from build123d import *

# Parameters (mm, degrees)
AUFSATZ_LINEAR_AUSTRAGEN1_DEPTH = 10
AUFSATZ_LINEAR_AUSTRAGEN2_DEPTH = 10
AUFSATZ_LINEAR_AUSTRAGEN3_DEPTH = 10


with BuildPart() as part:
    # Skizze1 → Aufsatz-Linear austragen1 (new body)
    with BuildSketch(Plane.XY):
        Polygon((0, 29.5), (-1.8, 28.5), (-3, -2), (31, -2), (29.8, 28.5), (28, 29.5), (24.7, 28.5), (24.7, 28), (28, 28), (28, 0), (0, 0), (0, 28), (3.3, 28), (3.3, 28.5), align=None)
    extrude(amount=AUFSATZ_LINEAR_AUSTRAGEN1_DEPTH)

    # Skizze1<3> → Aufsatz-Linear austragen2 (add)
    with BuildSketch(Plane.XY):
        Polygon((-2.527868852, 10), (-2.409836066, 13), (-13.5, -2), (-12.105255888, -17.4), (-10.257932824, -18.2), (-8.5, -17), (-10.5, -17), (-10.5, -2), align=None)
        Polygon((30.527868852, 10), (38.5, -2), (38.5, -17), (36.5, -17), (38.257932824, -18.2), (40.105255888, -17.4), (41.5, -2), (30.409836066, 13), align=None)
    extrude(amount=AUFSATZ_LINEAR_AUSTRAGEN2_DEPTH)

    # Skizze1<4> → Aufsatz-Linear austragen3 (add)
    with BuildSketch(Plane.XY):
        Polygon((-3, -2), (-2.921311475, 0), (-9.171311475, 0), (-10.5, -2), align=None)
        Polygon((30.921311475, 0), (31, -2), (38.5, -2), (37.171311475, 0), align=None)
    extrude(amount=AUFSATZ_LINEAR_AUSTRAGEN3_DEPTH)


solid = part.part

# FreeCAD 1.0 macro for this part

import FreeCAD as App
import Part
import Sketcher

V = App.Vector

doc = App.newDocument("Part")
params = doc.addObject("Spreadsheet::Sheet", "Params")
for row, (alias, value) in enumerate([
    ("sketch1_width", "34 mm"),
    ("sketch1_width2", "28 mm"),
    ("sketch1_width3", "3.3 mm"),
    ("sketch1_height", "0.5 mm"),
    ("pad1_length", "10 mm"),
    ("sketch2_width", "2 mm"),
    ("sketch2_height", "15 mm"),
    ("pad2_length", "10 mm"),
    ("sketch3_width", "7.5 mm"),
    ("sketch3_width2", "6.25 mm"),
    ("pad3_length", "10 mm"),
], start=1):
    params.set(f"A{row}", alias)
    params.set(f"B{row}", "=" + value)
    params.setAlias(f"B{row}", alias)

body = doc.addObject("PartDesign::Body", "Body")

# Sketch on XY plane
sketch1 = body.newObject("Sketcher::SketchObject", "Sketch")
sketch1.AttachmentSupport = (doc.getObject("XY_Plane"), [""])
sketch1.MapMode = "FlatFace"
sketch1.addGeometry([
    Part.LineSegment(V(0, 29.5, 0), V(-1.8, 28.5, 0)),  # 0
    Part.LineSegment(V(-1.8, 28.5, 0), V(-3, -2, 0)),  # 1
    Part.LineSegment(V(-3, -2, 0), V(31, -2, 0)),  # 2
    Part.LineSegment(V(31, -2, 0), V(29.8, 28.5, 0)),  # 3
    Part.LineSegment(V(29.8, 28.5, 0), V(28, 29.5, 0)),  # 4
    Part.LineSegment(V(28, 29.5, 0), V(24.7, 28.5, 0)),  # 5
    Part.LineSegment(V(24.7, 28.5, 0), V(24.7, 28, 0)),  # 6
    Part.LineSegment(V(24.7, 28, 0), V(28, 28, 0)),  # 7
    Part.LineSegment(V(28, 28, 0), V(28, 0, 0)),  # 8
    Part.LineSegment(V(28, 0, 0), V(0, 0, 0)),  # 9
    Part.LineSegment(V(0, 0, 0), V(0, 28, 0)),  # 10
    Part.LineSegment(V(0, 28, 0), V(3.3, 28, 0)),  # 11
    Part.LineSegment(V(3.3, 28, 0), V(3.3, 28.5, 0)),  # 12
    Part.LineSegment(V(3.3, 28.5, 0), V(0, 29.5, 0)),  # 13
], False)
sketch1.addConstraint([
    Sketcher.Constraint("Coincident", 0, 2, 1, 1),
    Sketcher.Constraint("Coincident", 1, 2, 2, 1),
    Sketcher.Constraint("Coincident", 2, 2, 3, 1),
    Sketcher.Constraint("Coincident", 3, 2, 4, 1),
    Sketcher.Constraint("Coincident", 4, 2, 5, 1),
    Sketcher.Constraint("Coincident", 5, 2, 6, 1),
    Sketcher.Constraint("Coincident", 6, 2, 7, 1),
    Sketcher.Constraint("Coincident", 7, 2, 8, 1),
    Sketcher.Constraint("Coincident", 8, 2, 9, 1),
    Sketcher.Constraint("Coincident", 9, 2, 10, 1),
    Sketcher.Constraint("Coincident", 10, 2, 11, 1),
    Sketcher.Constraint("Coincident", 11, 2, 12, 1),
    Sketcher.Constraint("Coincident", 12, 2, 13, 1),
    Sketcher.Constraint("Coincident", 13, 2, 0, 1),
    Sketcher.Constraint("Horizontal", 2),
    Sketcher.Constraint("Vertical", 6),
    Sketcher.Constraint("Horizontal", 7),
    Sketcher.Constraint("Vertical", 8),
    Sketcher.Constraint("Horizontal", 9),
    Sketcher.Constraint("Vertical", 10),
    Sketcher.Constraint("Horizontal", 11),
    Sketcher.Constraint("Vertical", 12),
    Sketcher.Constraint("Coincident", 9, 2, -1, 1),
    Sketcher.Constraint("PointOnObject", 13, 2, -2),
    Sketcher.Constraint("Horizontal", 0, 2, 3, 2),
    Sketcher.Constraint("Horizontal", 3, 2, 5, 2),
    Sketcher.Constraint("Horizontal", 7, 2, 10, 2),
    Sketcher.Constraint("Horizontal", 5, 2, 12, 2),
    Sketcher.Constraint("Horizontal", 4, 2, 13, 2),
    Sketcher.Constraint("Vertical", 4, 2, 7, 2),
    Sketcher.Constraint("Equal", 7, 11),
    Sketcher.Constraint("Equal", 9, 8),
    Sketcher.Constraint("Equal", 1, 3),
    Sketcher.Constraint("Equal", 0, 4),
    Sketcher.Constraint("DistanceX", 2, 1, 2, 2, 34.0),
    Sketcher.Constraint("DistanceX", 9, 2, 9, 1, 28.0),
    Sketcher.Constraint("DistanceX", 7, 1, 7, 2, 3.3),
    Sketcher.Constraint("DistanceY", 6, 2, 6, 1, 0.5),
    Sketcher.Constraint("DistanceY", 1, 2, -1, 1, 2.0),
    Sketcher.Constraint("DistanceY", 3, 2, 4, 2, 1.0),
    Sketcher.Constraint("DistanceX", 0, 2, -1, 1, 1.8),
])
sketch1.setExpression("Constraints[34]", "Params.sketch1_width")
sketch1.setExpression("Constraints[35]", "Params.sketch1_width2")
sketch1.setExpression("Constraints[36]", "Params.sketch1_width3")
sketch1.setExpression("Constraints[37]", "Params.sketch1_height")
pad1 = body.newObject("PartDesign::Pad", "Pad")
pad1.Profile = sketch1
pad1.setExpression("Length", "Params.pad1_length")

# Sketch on XY plane
sketch2 = body.newObject("Sketcher::SketchObject", "Sketch001")
sketch2.AttachmentSupport = (doc.getObject("XY_Plane"), [""])
sketch2.MapMode = "FlatFace"
sketch2.addGeometry([
    Part.LineSegment(V(-2.5, 10, 0), V(-2.4, 13, 0)),  # 0
    Part.LineSegment(V(-2.4, 13, 0), V(-13.5, -2, 0)),  # 1
    Part.LineSegment(V(-13.5, -2, 0), V(-12.1, -17.4, 0)),  # 2
    Part.LineSegment(V(-12.1, -17.4, 0), V(-10.3, -18.2, 0)),  # 3
    Part.LineSegment(V(-10.3, -18.2, 0), V(-8.5, -17, 0)),  # 4
    Part.LineSegment(V(-8.5, -17, 0), V(-10.5, -17, 0)),  # 5
    Part.LineSegment(V(-10.5, -17, 0), V(-10.5, -2, 0)),  # 6
    Part.LineSegment(V(-10.5, -2, 0), V(-2.5, 10, 0)),  # 7
    Part.LineSegment(V(30.5, 10, 0), V(38.5, -2, 0)),  # 8
    Part.LineSegment(V(38.5, -2, 0), V(38.5, -17, 0)),  # 9
    Part.LineSegment(V(38.5, -17, 0), V(36.5, -17, 0)),  # 10
    Part.LineSegment(V(36.5, -17, 0), V(38.3, -18.2, 0)),  # 11
    Part.LineSegment(V(38.3, -18.2, 0), V(40.1, -17.4, 0)),  # 12
    Part.LineSegment(V(40.1, -17.4, 0), V(41.5, -2, 0)),  # 13
    Part.LineSegment(V(41.5, -2, 0), V(30.4, 13, 0)),  # 14
    Part.LineSegment(V(30.4, 13, 0), V(30.5, 10, 0)),  # 15
], False)
sketch2.addConstraint([
    Sketcher.Constraint("Coincident", 0, 2, 1, 1),
    Sketcher.Constraint("Coincident", 1, 2, 2, 1),
    Sketcher.Constraint("Coincident", 2, 2, 3, 1),
    Sketcher.Constraint("Coincident", 3, 2, 4, 1),
    Sketcher.Constraint("Coincident", 4, 2, 5, 1),
    Sketcher.Constraint("Coincident", 5, 2, 6, 1),
    Sketcher.Constraint("Coincident", 6, 2, 7, 1),
    Sketcher.Constraint("Coincident", 7, 2, 0, 1),
    Sketcher.Constraint("Coincident", 8, 2, 9, 1),
    Sketcher.Constraint("Coincident", 9, 2, 10, 1),
    Sketcher.Constraint("Coincident", 10, 2, 11, 1),
    Sketcher.Constraint("Coincident", 11, 2, 12, 1),
    Sketcher.Constraint("Coincident", 12, 2, 13, 1),
    Sketcher.Constraint("Coincident", 13, 2, 14, 1),
    Sketcher.Constraint("Coincident", 14, 2, 15, 1),
    Sketcher.Constraint("Coincident", 15, 2, 8, 1),
    Sketcher.Constraint("Horizontal", 5),
    Sketcher.Constraint("Vertical", 6),
    Sketcher.Constraint("Vertical", 9),
    Sketcher.Constraint("Horizontal", 10),
    Sketcher.Constraint("Horizontal", 1, 2, 6, 2),
    Sketcher.Constraint("Horizontal", 6, 2, 8, 2),
    Sketcher.Constraint("Horizontal", 5, 2, 9, 2),
    Sketcher.Constraint("Horizontal", 3, 2, 11, 2),
    Sketcher.Constraint("Horizontal", 2, 2, 12, 2),
    Sketcher.Constraint("Horizontal", 8, 2, 13, 2),
    Sketcher.Constraint("Horizontal", 0, 2, 14, 2),
    Sketcher.Constraint("Horizontal", 7, 2, 15, 2),
    Sketcher.Constraint("Equal", 5, 10),
    Sketcher.Constraint("Equal", 7, 8),
    Sketcher.Constraint("Equal", 4, 11),
    Sketcher.Constraint("Equal", 3, 12),
    Sketcher.Constraint("Equal", 2, 13),
    Sketcher.Constraint("Equal", 1, 14),
    Sketcher.Constraint("DistanceX", 5, 2, 5, 1, 2.0),
    Sketcher.Constraint("DistanceY", 6, 1, 6, 2, 15.0),
    Sketcher.Constraint("DistanceY", -1, 1, 0, 2, 13.0),
    Sketcher.Constraint("DistanceY", 1, 2, -1, 1, 2.0),
    Sketcher.Constraint("DistanceY", -1, 1, 7, 2, 10.0),
    Sketcher.Constraint("DistanceX", 1, 2, 4, 2, 5.0),
    Sketcher.Constraint("DistanceX", 6, 2, 8, 2, 49.0),
    Sketcher.Constraint("DistanceX", 1, 2, -1, 1, 13.5),
    Sketcher.Constraint("DistanceY", 2, 2, -1, 1, 17.4),
    Sketcher.Constraint("DistanceY", 3, 2, -1, 1, 18.2),
    Sketcher.Constraint("Distance", 0, 3.002321),
    Sketcher.Constraint("Distance", 2, 15.46303),
    Sketcher.Constraint("DistanceX", 7, 2, -1, 1, 2.527869),
    Sketcher.Constraint("Distance", 3, 2.013108),
])
sketch2.setExpression("Constraints[34]", "Params.sketch2_width")
sketch2.setExpression("Constraints[35]", "Params.sketch2_height")
pad2 = body.newObject("PartDesign::Pad", "Pad001")
pad2.Profile = sketch2
pad2.setExpression("Length", "Params.pad2_length")

# Sketch on XY plane
sketch3 = body.newObject("Sketcher::SketchObject", "Sketch002")
sketch3.AttachmentSupport = (doc.getObject("XY_Plane"), [""])
sketch3.MapMode = "FlatFace"
sketch3.addGeometry([
    Part.LineSegment(V(-3, -2, 0), V(-2.9, 0, 0)),  # 0
    Part.LineSegment(V(-2.9, 0, 0), V(-9.2, 0, 0)),  # 1
    Part.LineSegment(V(-9.2, 0, 0), V(-10.5, -2, 0)),  # 2
    Part.LineSegment(V(-10.5, -2, 0), V(-3, -2, 0)),  # 3
    Part.LineSegment(V(30.9, 0, 0), V(31, -2, 0)),  # 4
    Part.LineSegment(V(31, -2, 0), V(38.5, -2, 0)),  # 5
    Part.LineSegment(V(38.5, -2, 0), V(37.2, 0, 0)),  # 6
    Part.LineSegment(V(37.2, 0, 0), V(30.9, 0, 0)),  # 7
], False)
sketch3.addConstraint([
    Sketcher.Constraint("Coincident", 0, 2, 1, 1),
    Sketcher.Constraint("Coincident", 1, 2, 2, 1),
    Sketcher.Constraint("Coincident", 2, 2, 3, 1),
    Sketcher.Constraint("Coincident", 3, 2, 0, 1),
    Sketcher.Constraint("Coincident", 4, 2, 5, 1),
    Sketcher.Constraint("Coincident", 5, 2, 6, 1),
    Sketcher.Constraint("Coincident", 6, 2, 7, 1),
    Sketcher.Constraint("Coincident", 7, 2, 4, 1),
    Sketcher.Constraint("Horizontal", 1),
    Sketcher.Constraint("Horizontal", 3),
    Sketcher.Constraint("Horizontal", 5),
    Sketcher.Constraint("Horizontal", 7),
    Sketcher.Constraint("PointOnObject", 0, 2, -1),
    Sketcher.Constraint("PointOnObject", 6, 2, -1),
    Sketcher.Constraint("Horizontal", 3, 2, 4, 2),
    Sketcher.Constraint("Equal", 3, 5),
    Sketcher.Constraint("Equal", 1, 7),
    Sketcher.Constraint("Equal", 0, 4),
    Sketcher.Constraint("DistanceX", 3, 1, 3, 2, 7.5),
    Sketcher.Constraint("DistanceY", 2, 2, -1, 1, 2.0),
    Sketcher.Constraint("DistanceX", 3, 2, -1, 1, 3.0),
    Sketcher.Constraint("DistanceX", -1, 1, 4, 2, 31.0),
    Sketcher.Constraint("DistanceX", 1, 2, 1, 1, 6.25),
    Sketcher.Constraint("DistanceX", 0, 2, -1, 1, 2.921311),
])
sketch3.setExpression("Constraints[18]", "Params.sketch3_width")
sketch3.setExpression("Constraints[22]", "Params.sketch3_width2")
pad3 = body.newObject("PartDesign::Pad", "Pad002")
pad3.Profile = sketch3
pad3.setExpression("Length", "Params.pad3_length")

doc.recompute()
